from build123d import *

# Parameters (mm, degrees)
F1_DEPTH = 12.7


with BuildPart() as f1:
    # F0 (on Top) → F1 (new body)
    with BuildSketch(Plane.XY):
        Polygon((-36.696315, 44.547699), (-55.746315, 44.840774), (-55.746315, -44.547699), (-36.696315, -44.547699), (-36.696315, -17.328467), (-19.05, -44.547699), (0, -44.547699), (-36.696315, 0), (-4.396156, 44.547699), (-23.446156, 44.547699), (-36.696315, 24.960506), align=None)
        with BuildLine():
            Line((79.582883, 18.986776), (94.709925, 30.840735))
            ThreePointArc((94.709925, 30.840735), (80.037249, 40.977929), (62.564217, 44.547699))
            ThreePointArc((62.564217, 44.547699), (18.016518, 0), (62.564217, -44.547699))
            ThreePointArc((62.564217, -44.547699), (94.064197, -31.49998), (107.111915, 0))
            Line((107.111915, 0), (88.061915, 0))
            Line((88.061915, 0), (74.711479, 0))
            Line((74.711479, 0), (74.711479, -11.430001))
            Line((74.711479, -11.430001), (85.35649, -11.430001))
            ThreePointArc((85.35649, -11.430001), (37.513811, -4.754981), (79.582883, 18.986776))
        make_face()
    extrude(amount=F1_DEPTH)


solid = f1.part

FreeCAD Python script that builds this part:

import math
import FreeCAD as App
import Part
import Sketcher
from FreeCAD import Vector
Q = App.Units.Quantity

doc = App.newDocument("Part")
body = doc.addObject("PartDesign::Body", "Body")
body.AllowCompound = True

# Sketch on XY plane
sketch1 = doc.addObject("Sketcher::SketchObject", "Sketch")
body.addObject(sketch1)
sketch1.AttachmentSupport = (doc.XY_Plane, [""])
sketch1.MapMode = "FlatFace"
sketch1.addGeometry(Part.LineSegment(Vector(-36.696315, 44.547699, 0), Vector(-55.746315, 44.840774, 0)), False)
sketch1.addGeometry(Part.LineSegment(Vector(-55.746315, 44.840774, 0), Vector(-55.746315, -44.547699, 0)), False)
sketch1.addGeometry(Part.LineSegment(Vector(-55.746315, -44.547699, 0), Vector(-36.696315, -44.547699, 0)), False)
sketch1.addGeometry(Part.LineSegment(Vector(-36.696315, -44.547699, 0), Vector(-36.696315, -17.328467, 0)), False)
sketch1.addGeometry(Part.LineSegment(Vector(-36.696315, -17.328467, 0), Vector(-19.05, -44.547699, 0)), False)
sketch1.addGeometry(Part.LineSegment(Vector(-19.05, -44.547699, 0), Vector(0, -44.547699, 0)), False)
sketch1.addGeometry(Part.LineSegment(Vector(0, -44.547699, 0), Vector(-36.696315, 0, 0)), False)
sketch1.addGeometry(Part.LineSegment(Vector(-36.696315, 0, 0), Vector(-4.396156, 44.547699, 0)), False)
sketch1.addGeometry(Part.LineSegment(Vector(-4.396156, 44.547699, 0), Vector(-23.446156, 44.547699, 0)), False)
sketch1.addGeometry(Part.LineSegment(Vector(-23.446156, 44.547699, 0), Vector(-36.696315, 24.960506, 0)), False)
sketch1.addGeometry(Part.LineSegment(Vector(-36.696315, 24.960506, 0), Vector(-36.696315, 44.547699, 0)), False)
sketch1.addGeometry(Part.LineSegment(Vector(79.582883, 18.986776, 0), Vector(94.709925, 30.840735, 0)), False)
sketch1.addGeometry(Part.ArcOfCircle(Part.Circle(Vector(62.564219, 0.000004, 0), Vector(0, 0, 1), 44.547695), math.radians(43.813095), math.radians(90.000002)), False)
sketch1.addGeometry(Part.ArcOfCircle(Part.Circle(Vector(62.564217, 0, 0), Vector(0, 0, 1), 44.547699), math.radians(90), math.radians(270)), False)
sketch1.addGeometry(Part.ArcOfCircle(Part.Circle(Vector(62.564218, -0.000002, 0), Vector(0, 0, 1), 44.547697), math.radians(-90.000001), math.radians(0.000002)), False)
sketch1.addGeometry(Part.LineSegment(Vector(107.111915, 0, 0), Vector(74.711479, 0, 0)), False)
sketch1.addGeometry(Part.LineSegment(Vector(74.711479, 0, 0), Vector(74.711479, -11.430001, 0)), False)
sketch1.addGeometry(Part.LineSegment(Vector(74.711479, -11.430001, 0), Vector(85.35649, -11.430001, 0)), False)
sketch1.addGeometry(Part.ArcOfCircle(Part.Circle(Vector(62.564216, 0, 0), Vector(0, 0, 1), 25.497699), math.radians(48.128756), math.radians(333.366886)), False)
sketch1.addConstraint(Sketcher.Constraint("Coincident", 0, 2, 1, 1))
sketch1.addConstraint(Sketcher.Constraint("Coincident", 1, 2, 2, 1))
sketch1.addConstraint(Sketcher.Constraint("Coincident", 2, 2, 3, 1))
sketch1.addConstraint(Sketcher.Constraint("Coincident", 3, 2, 4, 1))
sketch1.addConstraint(Sketcher.Constraint("Coincident", 4, 2, 5, 1))
sketch1.addConstraint(Sketcher.Constraint("Coincident", 5, 2, 6, 1))
sketch1.addConstraint(Sketcher.Constraint("Coincident", 6, 2, 7, 1))
sketch1.addConstraint(Sketcher.Constraint("Coincident", 7, 2, 8, 1))
sketch1.addConstraint(Sketcher.Constraint("Coincident", 8, 2, 9, 1))
sketch1.addConstraint(Sketcher.Constraint("Coincident", 9, 2, 10, 1))
sketch1.addConstraint(Sketcher.Constraint("Coincident", 10, 2, 0, 1))
sketch1.addConstraint(Sketcher.Constraint("Coincident", 11, 2, 12, 1))
sketch1.addConstraint(Sketcher.Constraint("Tangent", 12, 2, 13, 1))
sketch1.addConstraint(Sketcher.Constraint("Tangent", 13, 2, 14, 1))
sketch1.addConstraint(Sketcher.Constraint("Coincident", 14, 2, 15, 1))
sketch1.addConstraint(Sketcher.Constraint("Coincident", 15, 2, 16, 1))
sketch1.addConstraint(Sketcher.Constraint("Coincident", 16, 2, 17, 1))
sketch1.addConstraint(Sketcher.Constraint("Coincident", 17, 2, 18, 2))
sketch1.addConstraint(Sketcher.Constraint("Coincident", 18, 1, 11, 1))
sketch1.addConstraint(Sketcher.Constraint("Vertical", 1))
sketch1.addConstraint(Sketcher.Constraint("Horizontal", 2))
sketch1.addConstraint(Sketcher.Constraint("Vertical", 3))
sketch1.addConstraint(Sketcher.Constraint("Horizontal", 5))
sketch1.addConstraint(Sketcher.Constraint("Horizontal", 8))
sketch1.addConstraint(Sketcher.Constraint("Vertical", 10))
sketch1.addConstraint(Sketcher.Constraint("Horizontal", 15))
sketch1.addConstraint(Sketcher.Constraint("Vertical", 16))
sketch1.addConstraint(Sketcher.Constraint("Horizontal", 17))
sketch1.addConstraint(Sketcher.Constraint("Coincident", 18, 3, 12, 3))
sketch1.addConstraint(Sketcher.Constraint("Equal", 13, 14))
sketch1.addConstraint(Sketcher.Constraint("Symmetric", 2, 2, 10, 2, -1))
sketch1.addConstraint(Sketcher.Constraint("Symmetric", 12, 2, 13, 2, -1))
sketch1.addConstraint(Sketcher.Constraint("PointOnObject", 18, 3, -1))
sketch1.addConstraint(Sketcher.Constraint("PointOnObject", 5, 2, -2))
sketch1.addConstraint(Sketcher.Constraint("PointOnObject", 6, 2, -1))
sketch1.addConstraint(Sketcher.Constraint("PointOnObject", 14, 2, -1))
sketch1.addConstraint(Sketcher.Constraint("Horizontal", 2, 2, 4, 2))
sketch1.addConstraint(Sketcher.Constraint("Horizontal", 8, 2, 10, 2))
sketch1.addConstraint(Sketcher.Constraint("Horizontal", 10, 2, 12, 2))
sketch1.addConstraint(Sketcher.Constraint("Vertical", 3, 2, 6, 2))
sketch1.addConstraint(Sketcher.Constraint("Vertical", 18, 3, 12, 2))
sketch1.addConstraint(Sketcher.Constraint("Equal", 2, 5))
sketch1.addConstraint(Sketcher.Constraint("Equal", 5, 8))
sketch1.addConstraint(Sketcher.Constraint("DistanceX", 2, 1, 2, 2, Q("0.75 in")))
sketch1.addConstraint(Sketcher.Constraint("DistanceY", 16, 2, 16, 1, Q("0.45 in")))
sketch1.addConstraint(Sketcher.Constraint("Radius", 13, 44.547699))
sketch1.addConstraint(Sketcher.Constraint("Radius", 18, 25.497699))
sketch1.addConstraint(Sketcher.Constraint("DistanceX", 17, 1, 17, 2, 10.645011))
sketch1.addConstraint(Sketcher.Constraint("Distance", 4, 32.438851))
sketch1.addConstraint(Sketcher.Constraint("Distance", 6, 57.71583))
sketch1.addConstraint(Sketcher.Constraint("Distance", 7, 55.025428))
sketch1.addConstraint(Sketcher.Constraint("DistanceY", 1, 2, 1, 1, 89.388473))
sketch1.addConstraint(Sketcher.Constraint("DistanceY", 10, 1, 10, 2, 19.587193))
sketch1.addConstraint(Sketcher.Constraint("DistanceX", -1, 1, 12, 3, 62.564219))
sketch1.addConstraint(Sketcher.Constraint("DistanceY", 12, 3, 11, 2, 30.840731))
sketch1.addConstraint(Sketcher.Constraint("DistanceY", 18, 1, 11, 2, 11.853959))
pad1 = doc.addObject("PartDesign::Pad", "Pad")
body.addObject(pad1)
pad1.Profile = sketch1
pad1.Length = Q("0.5 in")

doc.recompute()
